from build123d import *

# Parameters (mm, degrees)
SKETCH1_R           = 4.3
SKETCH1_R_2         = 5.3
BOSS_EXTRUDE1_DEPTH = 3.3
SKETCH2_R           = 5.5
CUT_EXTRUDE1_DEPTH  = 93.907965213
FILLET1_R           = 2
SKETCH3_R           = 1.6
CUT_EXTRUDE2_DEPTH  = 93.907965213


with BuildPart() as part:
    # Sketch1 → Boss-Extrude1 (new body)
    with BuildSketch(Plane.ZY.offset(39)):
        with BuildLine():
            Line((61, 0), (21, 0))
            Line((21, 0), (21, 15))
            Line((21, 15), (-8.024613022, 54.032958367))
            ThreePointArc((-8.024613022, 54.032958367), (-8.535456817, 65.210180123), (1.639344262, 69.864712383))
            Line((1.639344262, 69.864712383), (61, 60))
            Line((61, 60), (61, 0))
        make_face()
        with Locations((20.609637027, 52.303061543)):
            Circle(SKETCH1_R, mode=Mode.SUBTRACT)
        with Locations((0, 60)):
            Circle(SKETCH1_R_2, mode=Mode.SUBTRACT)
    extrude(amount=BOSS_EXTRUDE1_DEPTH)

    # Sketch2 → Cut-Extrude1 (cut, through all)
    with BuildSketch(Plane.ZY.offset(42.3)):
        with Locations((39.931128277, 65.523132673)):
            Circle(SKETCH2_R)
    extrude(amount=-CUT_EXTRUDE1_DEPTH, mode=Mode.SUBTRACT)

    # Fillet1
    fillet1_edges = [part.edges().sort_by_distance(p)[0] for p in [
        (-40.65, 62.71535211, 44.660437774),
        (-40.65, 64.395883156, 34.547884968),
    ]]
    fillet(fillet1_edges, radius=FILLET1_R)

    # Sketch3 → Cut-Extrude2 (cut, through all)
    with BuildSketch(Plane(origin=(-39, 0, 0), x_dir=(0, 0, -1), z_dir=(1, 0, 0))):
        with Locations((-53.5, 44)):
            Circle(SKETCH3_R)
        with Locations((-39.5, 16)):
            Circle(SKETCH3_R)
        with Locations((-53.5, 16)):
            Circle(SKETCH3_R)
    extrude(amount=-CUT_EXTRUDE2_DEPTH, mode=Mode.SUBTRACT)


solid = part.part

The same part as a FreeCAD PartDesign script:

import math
import FreeCAD as App
import Part
import Sketcher
from FreeCAD import Vector


def edges_at(feature, points):
    """Names of the edges that pass closest to the given points."""
    edges = feature.Shape.Edges
    near = lambda p: min(range(len(edges)), key=lambda i: edges[i].distToShape(Part.Vertex(*p))[0])
    return sorted({f"Edge{near(p) + 1}" for p in points})

doc = App.newDocument("Part")
body = doc.addObject("PartDesign::Body", "Body")

# Sketch on YZ plane
sketch1 = body.newObject("Sketcher::SketchObject", "Sketch")
sketch1.AttachmentSupport = (doc.getObject("YZ_Plane"), [""])
sketch1.MapMode = "FlatFace"
sketch1.AttachmentOffset = App.Placement(Vector(0, 0, -39), App.Rotation())
sketch1.addGeometry(Part.LineSegment(Vector(0, 21, 0), Vector(0, 61, 0)), False)
sketch1.addGeometry(Part.LineSegment(Vector(0, 61, 0), Vector(60, 61, 0)), False)
sketch1.addGeometry(Part.LineSegment(Vector(60, 61, 0), Vector(69.9, 1.6, 0)), False)
sketch1.addGeometry(Part.ArcOfCircle(Part.Circle(Vector(60, 0, 0), Vector(0, 0, 1), 10), math.radians(-127), math.radians(9)), False)
sketch1.addGeometry(Part.LineSegment(Vector(54, -8, 0), Vector(15, 21, 0)), False)
sketch1.addGeometry(Part.LineSegment(Vector(15, 21, 0), Vector(0, 21, 0)), False)
sketch1.addGeometry(Part.Circle(Vector(52.3, 20.6, 0), Vector(0, 0, 1), 4.3), False)
sketch1.addGeometry(Part.Circle(Vector(60, 0, 0), Vector(0, 0, 1), 5.3), False)
sketch1.addConstraint(Sketcher.Constraint("Coincident", 0, 2, 1, 1))
sketch1.addConstraint(Sketcher.Constraint("Coincident", 1, 2, 2, 1))
sketch1.addConstraint(Sketcher.Constraint("Tangent", 2, 2, 3, 2))
sketch1.addConstraint(Sketcher.Constraint("Tangent", 3, 1, 4, 1))
sketch1.addConstraint(Sketcher.Constraint("Coincident", 4, 2, 5, 1))
sketch1.addConstraint(Sketcher.Constraint("Coincident", 5, 2, 0, 1))
sketch1.addConstraint(Sketcher.Constraint("Vertical", 0))
sketch1.addConstraint(Sketcher.Constraint("Horizontal", 1))
sketch1.addConstraint(Sketcher.Constraint("Horizontal", 5))
sketch1.addConstraint(Sketcher.Constraint("Coincident", 7, 3, 3, 3))
sketch1.addConstraint(Sketcher.Constraint("PointOnObject", 3, 3, -1))
sketch1.addConstraint(Sketcher.Constraint("PointOnObject", 0, 2, -2))
sketch1.addConstraint(Sketcher.Constraint("Vertical", 7, 3, 1, 2))
sketch1.addConstraint(Sketcher.Constraint("Radius", 3, 10.0))
sketch1.addConstraint(Sketcher.Constraint("Diameter", 6, 8.6))
sketch1.addConstraint(Sketcher.Constraint("Diameter", 7, 10.6))
sketch1.addConstraint(Sketcher.Constraint("DistanceX", 1, 1, 1, 2, 60.0))
sketch1.addConstraint(Sketcher.Constraint("DistanceX", 5, 2, 5, 1, 15.0))
sketch1.addConstraint(Sketcher.Constraint("DistanceY", 0, 1, 0, 2, 40.0))
sketch1.addConstraint(Sketcher.Constraint("DistanceY", -1, 1, 0, 2, 61.0))
sketch1.addConstraint(Sketcher.Constraint("DistanceX", -1, 1, 6, 3, 52.303062))
sketch1.addConstraint(Sketcher.Constraint("DistanceY", 3, 1, 6, 3, 28.63425))
pad1 = body.newObject("PartDesign::Pad", "Pad")
pad1.Profile = sketch1
pad1.Length = 3.3
pad1.Reversed = True

# Sketch on YZ plane
sketch2 = body.newObject("Sketcher::SketchObject", "Sketch001")
sketch2.AttachmentSupport = (doc.getObject("YZ_Plane"), [""])
sketch2.MapMode = "FlatFace"
sketch2.AttachmentOffset = App.Placement(Vector(0, 0, -42.3), App.Rotation())
sketch2.addGeometry(Part.Circle(Vector(66, 40, 0), Vector(0, 0, 1), 6), False)
sketch2.addConstraint(Sketcher.Constraint("Diameter", 0, 11.0))
sketch2.addConstraint(Sketcher.Constraint("DistanceY", -1, 1, 0, 3, 39.931128))
sketch2.addConstraint(Sketcher.Constraint("DistanceX", -1, 1, 0, 3, 65.523133))
pocket1 = body.newObject("PartDesign::Pocket", "Pocket")
pocket1.Profile = sketch2
pocket1.Type = "ThroughAll"
pocket1.Reversed = True
doc.recompute()

fillet = body.newObject("PartDesign::Fillet", "Fillet")
fillet.Base = (pocket1, edges_at(pocket1, [(-40.65, 62.715, 44.66), (-40.65, 64.396, 34.548)]))
fillet.Radius = 2

# Sketch on YZ plane
sketch3 = body.newObject("Sketcher::SketchObject", "Sketch002")
sketch3.AttachmentSupport = (doc.getObject("YZ_Plane"), [""])
sketch3.MapMode = "FlatFace"
sketch3.AttachmentOffset = App.Placement(Vector(0, 0, -39), App.Rotation())
sketch3.addGeometry(Part.Circle(Vector(44, 53.5, 0), Vector(0, 0, 1), 1.6), False)
sketch3.addGeometry(Part.Circle(Vector(16, 39.5, 0), Vector(0, 0, 1), 1.6), False)
sketch3.addGeometry(Part.Circle(Vector(16, 53.5, 0), Vector(0, 0, 1), 1.6), False)
sketch3.addConstraint(Sketcher.Constraint("Equal", 0, 1))
sketch3.addConstraint(Sketcher.Constraint("Equal", 1, 2))
sketch3.addConstraint(Sketcher.Constraint("Horizontal", 0, 3, 2, 3))
sketch3.addConstraint(Sketcher.Constraint("Vertical", 1, 3, 2, 3))
sketch3.addConstraint(Sketcher.Constraint("Diameter", 0, 3.2))
sketch3.addConstraint(Sketcher.Constraint("DistanceX", -1, 1, 0, 3, 44.0))
sketch3.addConstraint(Sketcher.Constraint("DistanceX", -1, 1, 1, 3, 16.0))
sketch3.addConstraint(Sketcher.Constraint("DistanceY", 1, 3, 0, 3, 14.0))
sketch3.addConstraint(Sketcher.Constraint("DistanceY", -1, 1, 0, 3, 53.5))
pocket2 = body.newObject("PartDesign::Pocket", "Pocket001")
pocket2.Profile = sketch3
pocket2.Type = "ThroughAll"

doc.recompute()
